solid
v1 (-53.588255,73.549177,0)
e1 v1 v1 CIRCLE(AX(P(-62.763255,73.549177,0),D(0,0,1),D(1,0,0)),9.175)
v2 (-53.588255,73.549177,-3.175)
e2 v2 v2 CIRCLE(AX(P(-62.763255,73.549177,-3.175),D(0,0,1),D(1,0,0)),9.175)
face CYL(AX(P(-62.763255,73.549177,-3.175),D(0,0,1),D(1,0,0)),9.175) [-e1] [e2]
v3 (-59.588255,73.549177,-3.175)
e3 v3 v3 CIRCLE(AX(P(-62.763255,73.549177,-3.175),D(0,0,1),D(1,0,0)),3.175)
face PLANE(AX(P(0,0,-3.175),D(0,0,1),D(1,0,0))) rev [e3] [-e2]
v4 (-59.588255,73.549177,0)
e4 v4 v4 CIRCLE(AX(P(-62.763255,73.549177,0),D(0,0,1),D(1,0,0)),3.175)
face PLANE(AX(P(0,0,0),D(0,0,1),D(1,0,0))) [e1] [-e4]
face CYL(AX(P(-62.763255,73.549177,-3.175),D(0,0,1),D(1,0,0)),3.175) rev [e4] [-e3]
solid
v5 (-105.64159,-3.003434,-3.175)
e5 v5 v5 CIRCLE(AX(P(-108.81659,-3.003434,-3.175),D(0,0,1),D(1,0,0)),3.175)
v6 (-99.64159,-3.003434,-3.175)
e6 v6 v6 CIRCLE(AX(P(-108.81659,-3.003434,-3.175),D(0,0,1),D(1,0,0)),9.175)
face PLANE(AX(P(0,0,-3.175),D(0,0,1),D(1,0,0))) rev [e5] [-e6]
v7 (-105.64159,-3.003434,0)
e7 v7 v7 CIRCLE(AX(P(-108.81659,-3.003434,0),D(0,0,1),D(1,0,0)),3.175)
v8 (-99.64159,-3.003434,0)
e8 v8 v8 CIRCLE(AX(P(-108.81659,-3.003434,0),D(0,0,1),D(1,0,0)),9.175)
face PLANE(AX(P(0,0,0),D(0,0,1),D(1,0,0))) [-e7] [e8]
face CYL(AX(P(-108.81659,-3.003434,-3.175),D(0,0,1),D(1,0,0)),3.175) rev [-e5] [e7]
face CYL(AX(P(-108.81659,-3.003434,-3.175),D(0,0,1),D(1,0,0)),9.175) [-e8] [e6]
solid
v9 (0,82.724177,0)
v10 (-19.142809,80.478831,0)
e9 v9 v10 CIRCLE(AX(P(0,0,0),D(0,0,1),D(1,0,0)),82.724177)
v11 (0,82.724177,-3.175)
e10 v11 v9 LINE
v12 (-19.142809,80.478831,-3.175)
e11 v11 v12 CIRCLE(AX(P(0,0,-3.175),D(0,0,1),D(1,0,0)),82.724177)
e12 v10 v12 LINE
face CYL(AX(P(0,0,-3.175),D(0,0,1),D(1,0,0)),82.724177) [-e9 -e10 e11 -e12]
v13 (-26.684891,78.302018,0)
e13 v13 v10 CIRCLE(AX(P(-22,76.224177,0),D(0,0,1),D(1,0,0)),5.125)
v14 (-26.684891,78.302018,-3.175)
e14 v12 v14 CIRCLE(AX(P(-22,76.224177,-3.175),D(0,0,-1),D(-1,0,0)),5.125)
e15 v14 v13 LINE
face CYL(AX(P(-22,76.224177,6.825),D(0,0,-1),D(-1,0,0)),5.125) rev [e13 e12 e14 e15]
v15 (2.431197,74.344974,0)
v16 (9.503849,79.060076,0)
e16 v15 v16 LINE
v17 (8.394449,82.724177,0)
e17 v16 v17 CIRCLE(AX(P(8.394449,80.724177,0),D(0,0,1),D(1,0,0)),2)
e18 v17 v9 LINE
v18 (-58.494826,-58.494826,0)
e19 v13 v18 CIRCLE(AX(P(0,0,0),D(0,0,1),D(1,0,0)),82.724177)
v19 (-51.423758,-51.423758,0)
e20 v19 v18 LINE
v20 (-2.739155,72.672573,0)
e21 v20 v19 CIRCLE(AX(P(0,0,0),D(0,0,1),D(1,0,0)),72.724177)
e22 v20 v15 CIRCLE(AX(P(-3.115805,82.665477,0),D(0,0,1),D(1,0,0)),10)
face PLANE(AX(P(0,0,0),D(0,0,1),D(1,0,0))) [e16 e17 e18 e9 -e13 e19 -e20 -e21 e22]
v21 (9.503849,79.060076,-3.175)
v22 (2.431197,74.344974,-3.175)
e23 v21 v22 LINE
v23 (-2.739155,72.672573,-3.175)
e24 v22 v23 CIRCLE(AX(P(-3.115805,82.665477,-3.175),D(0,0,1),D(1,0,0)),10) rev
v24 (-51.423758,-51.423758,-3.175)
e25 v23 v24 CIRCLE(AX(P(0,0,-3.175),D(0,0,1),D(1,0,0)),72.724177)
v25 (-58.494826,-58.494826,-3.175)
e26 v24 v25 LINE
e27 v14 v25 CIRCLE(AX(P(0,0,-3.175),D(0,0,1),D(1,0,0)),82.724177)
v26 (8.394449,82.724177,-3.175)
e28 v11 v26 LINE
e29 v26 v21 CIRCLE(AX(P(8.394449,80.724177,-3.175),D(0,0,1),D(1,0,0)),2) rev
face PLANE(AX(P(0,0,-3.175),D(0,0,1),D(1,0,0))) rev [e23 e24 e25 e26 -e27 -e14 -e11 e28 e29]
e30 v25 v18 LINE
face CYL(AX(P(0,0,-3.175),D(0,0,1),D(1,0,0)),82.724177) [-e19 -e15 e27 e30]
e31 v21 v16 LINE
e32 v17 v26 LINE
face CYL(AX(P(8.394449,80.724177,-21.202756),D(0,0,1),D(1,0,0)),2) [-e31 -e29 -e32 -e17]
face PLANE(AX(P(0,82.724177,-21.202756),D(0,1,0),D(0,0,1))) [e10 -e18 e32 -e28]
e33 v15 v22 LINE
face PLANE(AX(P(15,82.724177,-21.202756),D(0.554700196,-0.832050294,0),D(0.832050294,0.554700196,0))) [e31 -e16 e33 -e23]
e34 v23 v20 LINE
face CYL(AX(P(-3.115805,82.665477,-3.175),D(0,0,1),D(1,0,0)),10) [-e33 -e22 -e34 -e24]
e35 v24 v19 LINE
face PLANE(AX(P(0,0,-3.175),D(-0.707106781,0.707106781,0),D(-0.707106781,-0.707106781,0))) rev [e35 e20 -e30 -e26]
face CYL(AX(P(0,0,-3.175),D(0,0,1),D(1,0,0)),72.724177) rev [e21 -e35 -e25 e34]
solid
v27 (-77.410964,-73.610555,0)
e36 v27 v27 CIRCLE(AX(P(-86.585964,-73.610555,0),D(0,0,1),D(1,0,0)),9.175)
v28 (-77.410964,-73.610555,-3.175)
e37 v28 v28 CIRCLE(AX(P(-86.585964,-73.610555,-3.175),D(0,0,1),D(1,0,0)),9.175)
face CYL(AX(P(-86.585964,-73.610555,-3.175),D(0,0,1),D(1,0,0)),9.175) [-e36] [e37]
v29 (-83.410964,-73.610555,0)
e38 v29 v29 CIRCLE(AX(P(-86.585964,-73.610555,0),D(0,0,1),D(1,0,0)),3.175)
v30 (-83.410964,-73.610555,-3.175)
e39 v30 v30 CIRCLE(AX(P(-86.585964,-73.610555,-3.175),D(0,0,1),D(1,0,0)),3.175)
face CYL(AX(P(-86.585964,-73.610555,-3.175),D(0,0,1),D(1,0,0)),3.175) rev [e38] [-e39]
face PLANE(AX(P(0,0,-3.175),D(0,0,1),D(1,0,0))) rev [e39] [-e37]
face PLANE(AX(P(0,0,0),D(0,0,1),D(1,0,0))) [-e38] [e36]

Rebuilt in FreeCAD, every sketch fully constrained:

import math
import FreeCAD as App
import Part
import Sketcher
Q = App.Units.Quantity


def edges_at(feature, points):
    """Names of the edges that pass closest to the given points."""
    edges = feature.Shape.Edges
    near = lambda p: min(range(len(edges)), key=lambda i: edges[i].distToShape(Part.Vertex(*p))[0])
    return sorted({f"Edge{near(p) + 1}" for p in points})


def add_polygon(sketch, points):
    """Adds a closed chain of lines whose ends are joined by coincident constraints."""
    first, n = sketch.GeometryCount, len(points)
    for a, b in zip(points, points[1:] + points[:1]):
        sketch.addGeometry(Part.LineSegment(App.Vector(*a, 0), App.Vector(*b, 0)), False)
    for i in range(n):
        sketch.addConstraint(Sketcher.Constraint("Coincident", first + i, 2, first + (i + 1) % n, 1))

doc = App.newDocument("Part")
body = doc.addObject("PartDesign::Body", "Body")

# Sketch on XY plane
sketch1 = body.newObject("Sketcher::SketchObject", "Sketch")
sketch1.AttachmentSupport = (doc.getObject("XY_Plane"), [""])
sketch1.MapMode = "FlatFace"
sketch1.addGeometry([
    Part.ArcOfCircle(Part.Circle(App.Vector(0, 0, 0), App.Vector(0, 0, 1), 73), math.radians(90), math.radians(225)),
    Part.LineSegment(App.Vector(0, 73, 0), App.Vector(0, 83, 0)),
    Part.ArcOfCircle(Part.Circle(App.Vector(0, 0, 0), App.Vector(0, 0, 1), 83), math.radians(90), math.radians(225)),
    Part.LineSegment(App.Vector(-58, -58, 0), App.Vector(-51, -51, 0)),
], False)
sketch1.addConstraint([
    Sketcher.Constraint("Coincident", 0, 1, 1, 1),
    Sketcher.Constraint("Coincident", 1, 2, 2, 1),
    Sketcher.Constraint("Coincident", 2, 2, 3, 1),
    Sketcher.Constraint("Coincident", 3, 2, 0, 2),
    Sketcher.Constraint("Vertical", 1),
    Sketcher.Constraint("Coincident", 0, 3, -1, 1),
    Sketcher.Constraint("Coincident", 2, 3, -1, 1),
    Sketcher.Constraint("PointOnObject", 0, 1, -2),
    Sketcher.Constraint("DistanceY", 1, 1, 1, 2, 10.0),
    Sketcher.Constraint("Angle", 3, Q("45 deg")),
    Sketcher.Constraint("Radius", 0, 72.724177),
    Sketcher.Constraint("DistanceX", 3, 2, -1, 1, 51.423758),
])
pad1 = body.newObject("PartDesign::Pad", "Pad")
pad1.Profile = sketch1
pad1.Length = 3.175
pad1.Reversed = True

# Sketch on XY plane
sketch2 = body.newObject("Sketcher::SketchObject", "Sketch001")
sketch2.AttachmentSupport = (doc.getObject("XY_Plane"), [""])
sketch2.MapMode = "FlatFace"
sketch2.AttachmentOffset = App.Placement(App.Vector(0, 0, -3.175), App.Rotation())
sketch2.addGeometry(Part.Circle(App.Vector(-22, 76, 0), App.Vector(0, 0, 1), 5), False)
sketch2.addConstraint([
    Sketcher.Constraint("Diameter", 0, 10.25),
    Sketcher.Constraint("DistanceX", 0, 3, -1, 1, 22.0),
    Sketcher.Constraint("DistanceY", -1, 1, 0, 3, 76.224177),
])
pocket1 = body.newObject("PartDesign::Pocket", "Pocket")
pocket1.Profile = sketch2
pocket1.Length = 10
pocket1.Reversed = True

# Sketch on XY plane
sketch3 = body.newObject("Sketcher::SketchObject", "Sketch002")
sketch3.AttachmentSupport = (doc.getObject("XY_Plane"), [""])
sketch3.MapMode = "FlatFace"
add_polygon(sketch3, [(15, 83), (0, 83), (0, 73)])  # lines 0-2
sketch3.addConstraint([
    Sketcher.Constraint("Horizontal", 0),
    Sketcher.Constraint("Vertical", 1),
    Sketcher.Constraint("PointOnObject", 0, 2, -2),
    Sketcher.Constraint("DistanceX", 0, 2, 0, 1, 15.0),
    Sketcher.Constraint("DistanceY", 1, 2, 1, 1, 10.0),
    Sketcher.Constraint("DistanceY", -1, 1, 0, 2, 82.724177),
])
pad2 = body.newObject("PartDesign::Pad", "Pad001")
pad2.Profile = sketch3
pad2.Length = 3.175
pad2.Reversed = True
doc.recompute()

fillet = body.newObject("PartDesign::Fillet", "Fillet")
fillet.Base = (pad2, edges_at(pad2, [(0, 72.724, -1.587)]))
fillet.Radius = 10
doc.recompute()

fillet2 = body.newObject("PartDesign::Fillet", "Fillet001")
fillet2.Base = (fillet, edges_at(fillet, [(15, 82.724, -1.587)]))
fillet2.Radius = 2
body2 = doc.addObject("PartDesign::Body", "Body001")

# Sketch on XY plane
sketch4 = body2.newObject("Sketcher::SketchObject", "Sketch003")
sketch4.AttachmentSupport = (doc.getObject("XY_Plane001"), [""])
sketch4.MapMode = "FlatFace"
sketch4.addGeometry([
    Part.Circle(App.Vector(-86.6, -73.6, 0), App.Vector(0, 0, 1), 9.2),
    Part.Circle(App.Vector(-86.6, -73.6, 0), App.Vector(0, 0, 1), 3.2),
], False)
sketch4.addConstraint([
    Sketcher.Constraint("Coincident", 1, 3, 0, 3),
    Sketcher.Constraint("Diameter", 0, 18.35),
    Sketcher.Constraint("Diameter", 1, 6.35),
    Sketcher.Constraint("DistanceX", 0, 3, -1, 1, 86.585964),
    Sketcher.Constraint("DistanceY", 0, 3, -1, 1, 73.610555),
])
pad3 = body2.newObject("PartDesign::Pad", "Pad002")
pad3.Profile = sketch4
pad3.Length = 3.175
pad3.Reversed = True
body3 = doc.addObject("PartDesign::Body", "Body002")

# Sketch on XY plane
sketch5 = body3.newObject("Sketcher::SketchObject", "Sketch004")
sketch5.AttachmentSupport = (doc.getObject("XY_Plane002"), [""])
sketch5.MapMode = "FlatFace"
sketch5.addGeometry([
    Part.Circle(App.Vector(-62.8, 73.5, 0), App.Vector(0, 0, 1), 9.2),
    Part.Circle(App.Vector(-62.8, 73.5, 0), App.Vector(0, 0, 1), 3.2),
], False)
sketch5.addConstraint([
    Sketcher.Constraint("Coincident", 1, 3, 0, 3),
    Sketcher.Constraint("Diameter", 0, 18.35),
    Sketcher.Constraint("Diameter", 1, 6.35),
    Sketcher.Constraint("DistanceX", 0, 3, -1, 1, 62.763255),
    Sketcher.Constraint("DistanceY", -1, 1, 0, 3, 73.549177),
])
pad4 = body3.newObject("PartDesign::Pad", "Pad003")
pad4.Profile = sketch5
pad4.Length = 3.175
pad4.Reversed = True
body4 = doc.addObject("PartDesign::Body", "Body003")

# Sketch on XY plane
sketch6 = body4.newObject("Sketcher::SketchObject", "Sketch005")
sketch6.AttachmentSupport = (doc.getObject("XY_Plane003"), [""])
sketch6.MapMode = "FlatFace"
sketch6.addGeometry([
    Part.Circle(App.Vector(-108.8, -3, 0), App.Vector(0, 0, 1), 9.2),
    Part.Circle(App.Vector(-108.8, -3, 0), App.Vector(0, 0, 1), 3.2),
], False)
sketch6.addConstraint([
    Sketcher.Constraint("Coincident", 1, 3, 0, 3),
    Sketcher.Constraint("Diameter", 0, 18.35),
    Sketcher.Constraint("Diameter", 1, 6.35),
    Sketcher.Constraint("DistanceX", 0, 3, -1, 1, 108.81659),
    Sketcher.Constraint("DistanceY", 0, 3, -1, 1, 3.003434),
])
pad5 = body4.newObject("PartDesign::Pad", "Pad004")
pad5.Profile = sketch6
pad5.Length = 3.175
pad5.Reversed = True

doc.recompute()
